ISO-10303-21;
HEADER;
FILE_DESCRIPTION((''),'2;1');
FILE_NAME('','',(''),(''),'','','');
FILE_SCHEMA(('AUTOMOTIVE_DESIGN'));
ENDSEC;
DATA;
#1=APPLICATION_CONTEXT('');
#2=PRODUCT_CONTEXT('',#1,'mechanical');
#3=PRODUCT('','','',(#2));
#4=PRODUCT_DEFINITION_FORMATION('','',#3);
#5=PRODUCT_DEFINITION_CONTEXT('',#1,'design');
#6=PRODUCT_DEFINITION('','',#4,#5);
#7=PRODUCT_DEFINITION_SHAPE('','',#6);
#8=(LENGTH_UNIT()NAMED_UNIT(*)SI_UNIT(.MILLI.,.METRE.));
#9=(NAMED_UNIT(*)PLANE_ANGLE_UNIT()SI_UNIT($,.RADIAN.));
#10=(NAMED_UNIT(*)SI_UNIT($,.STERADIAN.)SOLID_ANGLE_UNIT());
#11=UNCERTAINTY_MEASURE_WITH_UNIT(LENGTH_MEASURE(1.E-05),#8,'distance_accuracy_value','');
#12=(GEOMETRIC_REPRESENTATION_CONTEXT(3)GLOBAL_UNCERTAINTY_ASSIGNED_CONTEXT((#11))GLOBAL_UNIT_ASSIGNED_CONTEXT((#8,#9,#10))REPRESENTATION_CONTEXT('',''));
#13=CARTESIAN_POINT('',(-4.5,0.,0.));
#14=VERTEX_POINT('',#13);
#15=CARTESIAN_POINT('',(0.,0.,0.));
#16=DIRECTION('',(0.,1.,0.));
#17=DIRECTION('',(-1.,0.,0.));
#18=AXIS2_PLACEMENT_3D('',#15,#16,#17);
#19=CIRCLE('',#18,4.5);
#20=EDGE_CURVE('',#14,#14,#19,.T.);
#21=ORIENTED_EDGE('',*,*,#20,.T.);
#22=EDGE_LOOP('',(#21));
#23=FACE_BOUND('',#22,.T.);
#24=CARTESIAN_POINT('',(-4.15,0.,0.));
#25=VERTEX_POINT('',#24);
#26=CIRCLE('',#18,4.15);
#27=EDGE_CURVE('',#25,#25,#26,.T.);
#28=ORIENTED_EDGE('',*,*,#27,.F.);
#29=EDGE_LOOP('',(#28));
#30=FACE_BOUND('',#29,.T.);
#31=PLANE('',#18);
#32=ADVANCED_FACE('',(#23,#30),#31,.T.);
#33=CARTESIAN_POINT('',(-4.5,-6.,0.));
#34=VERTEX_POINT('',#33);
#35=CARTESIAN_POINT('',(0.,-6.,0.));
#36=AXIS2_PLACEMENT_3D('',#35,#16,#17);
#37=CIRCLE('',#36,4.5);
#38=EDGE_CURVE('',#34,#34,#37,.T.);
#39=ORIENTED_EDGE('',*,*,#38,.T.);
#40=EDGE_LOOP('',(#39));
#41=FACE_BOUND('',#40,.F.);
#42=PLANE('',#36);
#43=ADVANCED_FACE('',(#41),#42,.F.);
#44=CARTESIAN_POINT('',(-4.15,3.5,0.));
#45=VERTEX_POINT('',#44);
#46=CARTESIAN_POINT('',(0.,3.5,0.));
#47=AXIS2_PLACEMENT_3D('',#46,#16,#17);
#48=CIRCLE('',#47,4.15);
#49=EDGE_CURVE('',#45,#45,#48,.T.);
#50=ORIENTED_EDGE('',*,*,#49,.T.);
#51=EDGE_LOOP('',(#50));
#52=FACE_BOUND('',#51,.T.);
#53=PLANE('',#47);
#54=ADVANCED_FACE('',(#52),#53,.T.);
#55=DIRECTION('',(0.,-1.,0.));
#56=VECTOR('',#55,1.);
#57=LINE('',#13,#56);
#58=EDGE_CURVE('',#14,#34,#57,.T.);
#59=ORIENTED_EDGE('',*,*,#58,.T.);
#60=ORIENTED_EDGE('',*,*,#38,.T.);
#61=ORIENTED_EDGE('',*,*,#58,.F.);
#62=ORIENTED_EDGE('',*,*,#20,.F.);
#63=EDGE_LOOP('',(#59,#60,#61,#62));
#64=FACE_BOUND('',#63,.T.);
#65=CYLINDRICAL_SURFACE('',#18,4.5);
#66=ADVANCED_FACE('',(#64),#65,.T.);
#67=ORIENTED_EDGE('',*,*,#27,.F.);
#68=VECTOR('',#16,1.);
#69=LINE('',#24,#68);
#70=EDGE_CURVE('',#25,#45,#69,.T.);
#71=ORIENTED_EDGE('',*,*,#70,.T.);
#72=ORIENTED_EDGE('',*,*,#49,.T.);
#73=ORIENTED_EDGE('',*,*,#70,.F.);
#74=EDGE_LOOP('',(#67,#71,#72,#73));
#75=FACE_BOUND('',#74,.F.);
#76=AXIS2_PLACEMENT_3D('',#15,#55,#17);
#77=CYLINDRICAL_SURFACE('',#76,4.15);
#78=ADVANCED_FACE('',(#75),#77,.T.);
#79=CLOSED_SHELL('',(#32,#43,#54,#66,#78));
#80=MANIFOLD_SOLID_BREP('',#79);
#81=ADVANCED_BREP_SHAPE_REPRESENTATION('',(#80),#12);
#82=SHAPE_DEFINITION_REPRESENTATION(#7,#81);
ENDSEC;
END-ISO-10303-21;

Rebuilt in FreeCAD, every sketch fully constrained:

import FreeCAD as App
import Part
import Sketcher
Q = App.Units.Quantity

doc = App.newDocument("Part")
body = doc.addObject("PartDesign::Body", "Body")

sketch1 = body.newObject("Sketcher::SketchObject", "Sketch")
sketch1.AttachmentSupport = (doc.getObject("XZ_Plane"), [""])
sketch1.MapMode = "FlatFace"
sketch1.addGeometry(Part.Circle(App.Vector(0, 0, 0), App.Vector(0, 0, 1), 4.2), False)
sketch1.addConstraint([
    Sketcher.Constraint("Coincident", 0, 3, -1, 1),
    Sketcher.Constraint("Diameter", 0, Q("8.3 mm")),
])
pad1 = body.newObject("PartDesign::Pad", "Pad")
pad1.Profile = sketch1
pad1.Length = 3.5
pad1.Reversed = True

sketch2 = body.newObject("Sketcher::SketchObject", "Sketch001")
sketch2.AttachmentSupport = (doc.getObject("XZ_Plane"), [""])
sketch2.MapMode = "FlatFace"
sketch2.addGeometry(Part.Circle(App.Vector(0, 0, 0), App.Vector(0, 0, 1), 4.5), False)
sketch2.addConstraint([
    Sketcher.Constraint("Coincident", 0, 3, -1, 1),
    Sketcher.Constraint("Diameter", 0, Q("9 mm")),
])
pad2 = body.newObject("PartDesign::Pad", "Pad001")
pad2.Profile = sketch2
pad2.Length = 6

doc.recompute()
